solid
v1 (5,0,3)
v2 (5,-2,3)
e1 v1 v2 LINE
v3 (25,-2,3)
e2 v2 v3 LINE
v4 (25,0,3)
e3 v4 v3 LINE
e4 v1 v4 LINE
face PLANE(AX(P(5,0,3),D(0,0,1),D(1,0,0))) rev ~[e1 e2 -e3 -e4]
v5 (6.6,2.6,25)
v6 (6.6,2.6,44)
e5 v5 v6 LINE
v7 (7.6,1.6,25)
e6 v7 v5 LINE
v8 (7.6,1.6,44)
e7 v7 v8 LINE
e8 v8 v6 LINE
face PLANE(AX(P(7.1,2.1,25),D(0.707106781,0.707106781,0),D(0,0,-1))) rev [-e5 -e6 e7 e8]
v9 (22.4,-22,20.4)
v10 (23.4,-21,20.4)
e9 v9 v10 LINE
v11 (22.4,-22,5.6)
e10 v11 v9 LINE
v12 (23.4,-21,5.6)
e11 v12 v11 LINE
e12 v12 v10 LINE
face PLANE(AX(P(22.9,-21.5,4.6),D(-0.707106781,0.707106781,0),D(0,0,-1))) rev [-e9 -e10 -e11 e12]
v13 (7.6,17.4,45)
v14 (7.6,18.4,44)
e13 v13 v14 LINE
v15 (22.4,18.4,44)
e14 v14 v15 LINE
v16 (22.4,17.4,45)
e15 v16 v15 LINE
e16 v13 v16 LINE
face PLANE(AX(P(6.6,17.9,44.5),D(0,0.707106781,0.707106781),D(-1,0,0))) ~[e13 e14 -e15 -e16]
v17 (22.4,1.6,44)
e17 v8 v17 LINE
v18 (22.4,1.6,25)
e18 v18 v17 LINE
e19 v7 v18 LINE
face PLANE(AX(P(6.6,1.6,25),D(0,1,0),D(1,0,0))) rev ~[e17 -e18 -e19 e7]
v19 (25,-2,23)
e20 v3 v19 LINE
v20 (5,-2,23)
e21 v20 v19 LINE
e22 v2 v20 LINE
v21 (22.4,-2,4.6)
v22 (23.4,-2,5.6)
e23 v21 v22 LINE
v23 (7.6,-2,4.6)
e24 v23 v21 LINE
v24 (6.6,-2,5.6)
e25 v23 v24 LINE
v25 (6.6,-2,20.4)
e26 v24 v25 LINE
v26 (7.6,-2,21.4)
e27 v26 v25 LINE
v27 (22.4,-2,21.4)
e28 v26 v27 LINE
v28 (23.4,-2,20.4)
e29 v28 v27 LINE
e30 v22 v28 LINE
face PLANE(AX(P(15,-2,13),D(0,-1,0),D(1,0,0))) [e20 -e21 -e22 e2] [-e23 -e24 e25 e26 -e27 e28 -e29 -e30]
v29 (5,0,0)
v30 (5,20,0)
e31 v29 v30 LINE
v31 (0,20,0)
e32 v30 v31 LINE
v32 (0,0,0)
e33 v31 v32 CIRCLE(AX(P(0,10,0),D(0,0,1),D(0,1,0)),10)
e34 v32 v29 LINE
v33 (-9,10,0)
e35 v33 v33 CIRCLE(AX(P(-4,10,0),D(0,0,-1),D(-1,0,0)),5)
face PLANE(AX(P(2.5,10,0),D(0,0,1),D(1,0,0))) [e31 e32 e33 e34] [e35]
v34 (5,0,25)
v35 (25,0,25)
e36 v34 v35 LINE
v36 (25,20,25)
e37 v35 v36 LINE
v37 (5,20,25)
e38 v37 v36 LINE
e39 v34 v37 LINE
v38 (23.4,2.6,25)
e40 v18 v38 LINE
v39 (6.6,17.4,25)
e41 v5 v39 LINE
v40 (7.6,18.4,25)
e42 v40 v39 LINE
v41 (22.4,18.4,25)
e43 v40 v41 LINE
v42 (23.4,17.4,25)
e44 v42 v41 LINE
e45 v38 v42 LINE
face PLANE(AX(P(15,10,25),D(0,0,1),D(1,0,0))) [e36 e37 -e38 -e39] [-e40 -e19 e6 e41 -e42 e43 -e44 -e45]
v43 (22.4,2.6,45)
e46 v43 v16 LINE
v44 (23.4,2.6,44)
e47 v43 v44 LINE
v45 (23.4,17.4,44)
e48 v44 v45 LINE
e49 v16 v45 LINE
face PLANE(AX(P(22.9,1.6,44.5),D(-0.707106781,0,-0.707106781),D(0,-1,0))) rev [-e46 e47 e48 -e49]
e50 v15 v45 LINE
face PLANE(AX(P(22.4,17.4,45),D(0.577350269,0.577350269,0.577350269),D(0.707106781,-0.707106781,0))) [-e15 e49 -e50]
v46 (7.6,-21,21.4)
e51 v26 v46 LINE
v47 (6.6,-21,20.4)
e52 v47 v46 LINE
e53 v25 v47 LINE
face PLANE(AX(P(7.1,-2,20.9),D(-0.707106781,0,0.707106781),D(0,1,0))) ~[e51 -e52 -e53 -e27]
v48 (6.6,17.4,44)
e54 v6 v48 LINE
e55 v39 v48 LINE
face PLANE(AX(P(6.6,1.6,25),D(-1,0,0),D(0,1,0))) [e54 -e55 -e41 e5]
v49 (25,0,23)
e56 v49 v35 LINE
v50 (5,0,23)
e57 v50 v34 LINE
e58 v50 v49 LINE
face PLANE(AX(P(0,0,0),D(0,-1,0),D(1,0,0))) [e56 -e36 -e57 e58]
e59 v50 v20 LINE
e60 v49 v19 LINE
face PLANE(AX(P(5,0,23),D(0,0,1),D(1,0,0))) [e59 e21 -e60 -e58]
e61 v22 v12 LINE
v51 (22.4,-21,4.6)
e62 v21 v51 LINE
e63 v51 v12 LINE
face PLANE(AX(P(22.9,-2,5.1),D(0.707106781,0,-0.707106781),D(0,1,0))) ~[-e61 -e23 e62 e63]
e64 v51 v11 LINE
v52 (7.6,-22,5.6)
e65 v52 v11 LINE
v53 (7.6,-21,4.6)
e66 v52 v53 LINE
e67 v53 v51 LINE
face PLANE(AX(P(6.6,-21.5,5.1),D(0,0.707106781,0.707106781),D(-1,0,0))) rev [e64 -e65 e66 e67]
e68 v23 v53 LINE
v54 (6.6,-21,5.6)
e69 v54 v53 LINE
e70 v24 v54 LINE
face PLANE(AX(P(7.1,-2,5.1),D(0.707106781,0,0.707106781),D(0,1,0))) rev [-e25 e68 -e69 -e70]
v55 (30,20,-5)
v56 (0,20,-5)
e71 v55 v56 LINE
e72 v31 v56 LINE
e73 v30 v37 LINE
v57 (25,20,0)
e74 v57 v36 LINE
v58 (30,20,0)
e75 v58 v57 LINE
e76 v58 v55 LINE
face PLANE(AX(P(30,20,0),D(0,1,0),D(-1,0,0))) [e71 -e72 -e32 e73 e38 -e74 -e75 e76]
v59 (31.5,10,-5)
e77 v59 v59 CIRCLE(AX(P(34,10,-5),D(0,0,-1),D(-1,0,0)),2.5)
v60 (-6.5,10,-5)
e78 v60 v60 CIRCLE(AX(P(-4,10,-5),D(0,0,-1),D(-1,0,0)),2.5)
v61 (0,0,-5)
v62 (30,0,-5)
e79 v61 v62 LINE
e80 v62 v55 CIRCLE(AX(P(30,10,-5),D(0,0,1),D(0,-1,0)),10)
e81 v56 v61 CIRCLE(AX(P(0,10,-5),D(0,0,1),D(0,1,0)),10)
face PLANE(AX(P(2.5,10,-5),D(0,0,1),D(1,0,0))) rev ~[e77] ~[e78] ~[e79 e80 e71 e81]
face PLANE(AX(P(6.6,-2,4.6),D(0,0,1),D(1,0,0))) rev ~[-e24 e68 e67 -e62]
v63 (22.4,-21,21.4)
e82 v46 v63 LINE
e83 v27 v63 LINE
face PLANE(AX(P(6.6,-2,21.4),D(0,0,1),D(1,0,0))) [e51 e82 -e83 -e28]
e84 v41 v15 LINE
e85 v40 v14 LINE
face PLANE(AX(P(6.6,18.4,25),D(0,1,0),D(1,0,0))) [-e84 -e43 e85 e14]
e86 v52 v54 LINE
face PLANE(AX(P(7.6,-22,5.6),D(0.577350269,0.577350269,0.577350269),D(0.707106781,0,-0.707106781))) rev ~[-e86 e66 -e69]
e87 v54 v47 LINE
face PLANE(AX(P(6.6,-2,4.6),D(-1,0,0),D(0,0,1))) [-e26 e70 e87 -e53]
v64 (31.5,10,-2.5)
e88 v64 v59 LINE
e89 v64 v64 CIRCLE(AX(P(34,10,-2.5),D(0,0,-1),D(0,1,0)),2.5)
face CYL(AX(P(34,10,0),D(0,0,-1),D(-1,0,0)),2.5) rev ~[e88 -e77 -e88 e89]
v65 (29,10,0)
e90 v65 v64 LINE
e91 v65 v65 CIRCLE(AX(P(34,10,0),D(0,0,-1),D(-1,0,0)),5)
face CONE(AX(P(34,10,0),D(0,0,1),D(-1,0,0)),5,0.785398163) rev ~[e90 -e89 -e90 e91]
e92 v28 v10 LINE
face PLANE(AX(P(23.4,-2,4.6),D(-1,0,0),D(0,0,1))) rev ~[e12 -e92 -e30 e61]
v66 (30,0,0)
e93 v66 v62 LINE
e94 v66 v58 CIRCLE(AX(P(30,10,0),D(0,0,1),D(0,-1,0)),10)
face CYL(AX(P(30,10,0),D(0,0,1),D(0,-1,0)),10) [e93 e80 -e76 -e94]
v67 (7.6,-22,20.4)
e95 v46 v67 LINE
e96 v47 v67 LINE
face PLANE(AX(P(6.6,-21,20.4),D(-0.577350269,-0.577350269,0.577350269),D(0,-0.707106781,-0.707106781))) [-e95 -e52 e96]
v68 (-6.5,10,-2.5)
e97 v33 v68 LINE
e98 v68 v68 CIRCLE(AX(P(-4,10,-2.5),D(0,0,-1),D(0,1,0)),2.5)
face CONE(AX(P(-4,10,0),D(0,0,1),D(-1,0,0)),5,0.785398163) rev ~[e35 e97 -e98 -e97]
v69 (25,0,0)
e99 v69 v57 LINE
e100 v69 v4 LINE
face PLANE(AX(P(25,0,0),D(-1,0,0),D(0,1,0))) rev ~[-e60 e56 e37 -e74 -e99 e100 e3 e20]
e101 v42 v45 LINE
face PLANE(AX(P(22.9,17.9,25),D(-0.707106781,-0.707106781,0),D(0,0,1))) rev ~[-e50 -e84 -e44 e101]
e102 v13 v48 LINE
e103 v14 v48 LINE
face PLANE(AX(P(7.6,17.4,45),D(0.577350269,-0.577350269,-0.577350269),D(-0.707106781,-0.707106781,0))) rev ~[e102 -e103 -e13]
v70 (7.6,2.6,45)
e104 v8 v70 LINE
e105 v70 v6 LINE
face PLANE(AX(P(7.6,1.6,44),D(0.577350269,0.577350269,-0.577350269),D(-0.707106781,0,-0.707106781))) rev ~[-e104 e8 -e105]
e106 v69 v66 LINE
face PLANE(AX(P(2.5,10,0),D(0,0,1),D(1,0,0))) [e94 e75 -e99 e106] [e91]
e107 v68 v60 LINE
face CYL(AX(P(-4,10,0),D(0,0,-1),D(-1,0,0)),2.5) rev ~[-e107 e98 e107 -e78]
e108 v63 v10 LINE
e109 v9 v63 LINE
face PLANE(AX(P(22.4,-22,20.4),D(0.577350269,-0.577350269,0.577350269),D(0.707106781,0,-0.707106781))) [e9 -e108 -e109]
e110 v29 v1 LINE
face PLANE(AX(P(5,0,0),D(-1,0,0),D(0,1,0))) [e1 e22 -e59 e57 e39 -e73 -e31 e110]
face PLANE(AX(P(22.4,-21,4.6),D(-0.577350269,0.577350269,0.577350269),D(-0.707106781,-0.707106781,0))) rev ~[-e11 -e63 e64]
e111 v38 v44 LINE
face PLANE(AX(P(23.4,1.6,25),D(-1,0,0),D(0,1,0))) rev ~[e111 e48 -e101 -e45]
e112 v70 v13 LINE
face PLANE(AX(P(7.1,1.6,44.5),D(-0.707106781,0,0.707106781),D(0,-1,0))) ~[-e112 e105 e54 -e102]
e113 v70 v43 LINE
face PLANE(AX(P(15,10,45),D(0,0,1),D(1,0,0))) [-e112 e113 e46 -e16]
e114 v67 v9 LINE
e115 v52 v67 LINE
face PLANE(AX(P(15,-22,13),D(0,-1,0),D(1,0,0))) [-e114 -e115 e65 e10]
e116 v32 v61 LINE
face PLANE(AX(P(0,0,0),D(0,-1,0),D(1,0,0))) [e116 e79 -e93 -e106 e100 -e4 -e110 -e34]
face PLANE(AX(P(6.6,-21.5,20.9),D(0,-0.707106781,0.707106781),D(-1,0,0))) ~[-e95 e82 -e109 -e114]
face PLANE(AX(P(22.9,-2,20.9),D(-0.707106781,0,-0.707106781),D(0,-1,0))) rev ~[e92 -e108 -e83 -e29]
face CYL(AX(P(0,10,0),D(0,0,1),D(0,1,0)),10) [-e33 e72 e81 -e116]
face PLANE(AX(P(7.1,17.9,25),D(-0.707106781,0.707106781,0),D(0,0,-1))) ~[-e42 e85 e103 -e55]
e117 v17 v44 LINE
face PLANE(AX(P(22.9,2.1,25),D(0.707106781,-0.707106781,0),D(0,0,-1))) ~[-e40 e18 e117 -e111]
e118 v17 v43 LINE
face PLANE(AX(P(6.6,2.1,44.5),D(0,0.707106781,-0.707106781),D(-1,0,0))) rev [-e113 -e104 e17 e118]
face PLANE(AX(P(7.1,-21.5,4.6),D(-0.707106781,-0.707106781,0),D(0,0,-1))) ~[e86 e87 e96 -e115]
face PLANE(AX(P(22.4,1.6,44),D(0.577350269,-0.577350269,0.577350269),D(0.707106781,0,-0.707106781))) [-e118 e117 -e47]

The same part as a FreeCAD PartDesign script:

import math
import FreeCAD as App
import Part
import Sketcher

V = App.Vector


def edges_at(feature, points):
    """Names of the edges that pass closest to the given points."""
    edges = feature.Shape.Edges
    near = lambda p: min(range(len(edges)), key=lambda i: edges[i].distToShape(Part.Vertex(*p))[0])
    return sorted({f"Edge{near(p) + 1}" for p in points})

doc = App.newDocument("Part")
body = doc.addObject("PartDesign::Body", "Body")

# Sketch on XY plane
sketch1 = body.newObject("Sketcher::SketchObject", "Sketch")
sketch1.AttachmentSupport = (doc.getObject("XY_Plane"), [""])
sketch1.MapMode = "FlatFace"
sketch1.addGeometry([
    Part.LineSegment(V(5, 20, 0), V(5, 0, 0)),
    Part.LineSegment(V(5, 0, 0), V(25, 0, 0)),
    Part.LineSegment(V(25, 0, 0), V(25, 20, 0)),
    Part.LineSegment(V(25, 20, 0), V(5, 20, 0)),
], False)
sketch1.addConstraint([
    Sketcher.Constraint("Coincident", 0, 2, 1, 1),
    Sketcher.Constraint("Coincident", 1, 2, 2, 1),
    Sketcher.Constraint("Coincident", 2, 2, 3, 1),
    Sketcher.Constraint("Coincident", 3, 2, 0, 1),
    Sketcher.Constraint("Vertical", 0),
    Sketcher.Constraint("Horizontal", 1),
    Sketcher.Constraint("Vertical", 2),
    Sketcher.Constraint("Horizontal", 3),
    Sketcher.Constraint("PointOnObject", 0, 2, -1),
    Sketcher.Constraint("Equal", 3, 0),
    Sketcher.Constraint("DistanceX", 1, 1, 1, 2, 20.0),
    Sketcher.Constraint("DistanceX", -1, 1, 0, 2, 5.0),
])
pad1 = body.newObject("PartDesign::Pad", "Pad")
pad1.Profile = sketch1
pad1.Length = 25

# Sketch on XY plane
sketch2 = body.newObject("Sketcher::SketchObject", "Sketch001")
sketch2.AttachmentSupport = (doc.getObject("XY_Plane"), [""])
sketch2.MapMode = "FlatFace"
sketch2.addGeometry([
    Part.LineSegment(V(0, 0, 0), V(30, 0, 0)),
    Part.ArcOfCircle(Part.Circle(V(30, 10, 0), V(0, 0, 1), 10), math.radians(-90), math.radians(90)),
    Part.LineSegment(V(30, 20, 0), V(0, 20, 0)),
    Part.ArcOfCircle(Part.Circle(V(0, 10, 0), V(0, 0, 1), 10), math.radians(90), math.radians(270)),
], False)
sketch2.addConstraint([
    Sketcher.Constraint("Tangent", 0, 2, 1, 1),
    Sketcher.Constraint("Tangent", 1, 2, 2, 1),
    Sketcher.Constraint("Tangent", 2, 2, 3, 1),
    Sketcher.Constraint("Tangent", 3, 2, 0, 1),
    Sketcher.Constraint("Horizontal", 0),
    Sketcher.Constraint("Horizontal", 2),
    Sketcher.Constraint("Coincident", 3, 2, -1, 1),
    Sketcher.Constraint("Radius", 1, 10.0),
    Sketcher.Constraint("DistanceX", 0, 1, 0, 2, 30.0),
])
pad2 = body.newObject("PartDesign::Pad", "Pad001")
pad2.Profile = sketch2
pad2.Length = 5
pad2.Reversed = True

# Sketch on XY plane
sketch3 = body.newObject("Sketcher::SketchObject", "Sketch002")
sketch3.AttachmentSupport = (doc.getObject("XY_Plane"), [""])
sketch3.MapMode = "FlatFace"
sketch3.AttachmentOffset = App.Placement(V(0, 0, 25), App.Rotation())
sketch3.addGeometry([
    Part.LineSegment(V(6.6, 18.4, 0), V(6.6, 1.6, 0)),
    Part.LineSegment(V(6.6, 1.6, 0), V(23.4, 1.6, 0)),
    Part.LineSegment(V(23.4, 1.6, 0), V(23.4, 18.4, 0)),
    Part.LineSegment(V(23.4, 18.4, 0), V(6.6, 18.4, 0)),
], False)
sketch3.addConstraint([
    Sketcher.Constraint("Coincident", 0, 2, 1, 1),
    Sketcher.Constraint("Coincident", 1, 2, 2, 1),
    Sketcher.Constraint("Coincident", 2, 2, 3, 1),
    Sketcher.Constraint("Coincident", 3, 2, 0, 1),
    Sketcher.Constraint("Vertical", 0),
    Sketcher.Constraint("Horizontal", 1),
    Sketcher.Constraint("Vertical", 2),
    Sketcher.Constraint("Horizontal", 3),
    Sketcher.Constraint("Equal", 3, 0),
    Sketcher.Constraint("DistanceX", 1, 1, 1, 2, 16.8),
    Sketcher.Constraint("DistanceX", -1, 1, 0, 2, 6.6),
    Sketcher.Constraint("DistanceY", -1, 1, 0, 2, 1.6),
])
pad3 = body.newObject("PartDesign::Pad", "Pad002")
pad3.Profile = sketch3
pad3.Length = 20

# Sketch on XZ plane
sketch4 = body.newObject("Sketcher::SketchObject", "Sketch003")
sketch4.AttachmentSupport = (doc.getObject("XZ_Plane"), [""])
sketch4.MapMode = "FlatFace"
sketch4.addGeometry([
    Part.LineSegment(V(5, 23, 0), V(5, 3, 0)),
    Part.LineSegment(V(5, 3, 0), V(25, 3, 0)),
    Part.LineSegment(V(25, 3, 0), V(25, 23, 0)),
    Part.LineSegment(V(25, 23, 0), V(5, 23, 0)),
], False)
sketch4.addConstraint([
    Sketcher.Constraint("Coincident", 0, 2, 1, 1),
    Sketcher.Constraint("Coincident", 1, 2, 2, 1),
    Sketcher.Constraint("Coincident", 2, 2, 3, 1),
    Sketcher.Constraint("Coincident", 3, 2, 0, 1),
    Sketcher.Constraint("Vertical", 0),
    Sketcher.Constraint("Horizontal", 1),
    Sketcher.Constraint("Vertical", 2),
    Sketcher.Constraint("Horizontal", 3),
    Sketcher.Constraint("Equal", 3, 0),
    Sketcher.Constraint("DistanceX", 1, 1, 1, 2, 20.0),
    Sketcher.Constraint("DistanceX", -1, 1, 0, 2, 5.0),
    Sketcher.Constraint("DistanceY", -1, 1, 0, 2, 3.0),
])
pad4 = body.newObject("PartDesign::Pad", "Pad003")
pad4.Profile = sketch4
pad4.Length = 2
doc.recompute()

chamfer = body.newObject("PartDesign::Chamfer", "Chamfer")
chamfer.Base = (pad4, edges_at(pad4, [
    (23.4, 18.4, 35),
    (6.6, 18.4, 35),
    (15, 18.4, 45),
    (6.6, 10, 45),
    (23.4, 10, 45),
    (15, 1.6, 45),
    (23.4, 1.6, 35),
    (6.6, 1.6, 35),
]))
chamfer.Size = 1

# Sketch on XZ plane
sketch5 = body.newObject("Sketcher::SketchObject", "Sketch004")
sketch5.AttachmentSupport = (doc.getObject("XZ_Plane"), [""])
sketch5.MapMode = "FlatFace"
sketch5.AttachmentOffset = App.Placement(V(0, 0, 2), App.Rotation())
sketch5.addGeometry([
    Part.LineSegment(V(6.6, 21.4, 0), V(6.6, 4.6, 0)),
    Part.LineSegment(V(6.6, 4.6, 0), V(23.4, 4.6, 0)),
    Part.LineSegment(V(23.4, 4.6, 0), V(23.4, 21.4, 0)),
    Part.LineSegment(V(23.4, 21.4, 0), V(6.6, 21.4, 0)),
], False)
sketch5.addConstraint([
    Sketcher.Constraint("Coincident", 0, 2, 1, 1),
    Sketcher.Constraint("Coincident", 1, 2, 2, 1),
    Sketcher.Constraint("Coincident", 2, 2, 3, 1),
    Sketcher.Constraint("Coincident", 3, 2, 0, 1),
    Sketcher.Constraint("Vertical", 0),
    Sketcher.Constraint("Horizontal", 1),
    Sketcher.Constraint("Vertical", 2),
    Sketcher.Constraint("Horizontal", 3),
    Sketcher.Constraint("Equal", 3, 0),
    Sketcher.Constraint("DistanceX", 1, 1, 1, 2, 16.8),
    Sketcher.Constraint("DistanceX", -1, 1, 0, 2, 6.6),
    Sketcher.Constraint("DistanceY", -1, 1, 0, 2, 4.6),
])
pad5 = body.newObject("PartDesign::Pad", "Pad004")
pad5.Profile = sketch5
pad5.Length = 20
doc.recompute()

chamfer2 = body.newObject("PartDesign::Chamfer", "Chamfer001")
chamfer2.Base = (pad5, edges_at(pad5, [
    (23.4, -12, 21.4),
    (15, -22, 21.4),
    (6.6, -12, 21.4),
    (23.4, -22, 13),
    (23.4, -12, 4.6),
    (6.6, -12, 4.6),
    (6.6, -22, 13),
    (15, -22, 4.6),
]))
chamfer2.Size = 1

# Sketch on XY plane
sketch6 = body.newObject("Sketcher::SketchObject", "Sketch005")
sketch6.AttachmentSupport = (doc.getObject("XY_Plane"), [""])
sketch6.MapMode = "FlatFace"
sketch6.addGeometry([
    Part.Circle(V(-4, 10, 0), V(0, 0, 1), 2.5),
    Part.Circle(V(34, 10, 0), V(0, 0, 1), 2.5),
], False)
sketch6.addConstraint([
    Sketcher.Constraint("Equal", 0, 1),
    Sketcher.Constraint("Horizontal", 0, 3, 1, 3),
    Sketcher.Constraint("Diameter", 0, 5.0),
    Sketcher.Constraint("DistanceX", 0, 3, -1, 1, 4.0),
    Sketcher.Constraint("DistanceY", -1, 1, 0, 3, 10.0),
    Sketcher.Constraint("DistanceX", -1, 1, 1, 3, 34.0),
])
doc.recompute()
hole = body.newObject("PartDesign::Hole", "Hole")
hole.Profile = sketch6
hole.ThreadType = "None"
hole.Diameter = 5
hole.DepthType = "ThroughAll"
hole.HoleCutType = "Countersink"
hole.HoleCutDiameter = 10
hole.HoleCutCountersinkAngle = 90

doc.recompute()
